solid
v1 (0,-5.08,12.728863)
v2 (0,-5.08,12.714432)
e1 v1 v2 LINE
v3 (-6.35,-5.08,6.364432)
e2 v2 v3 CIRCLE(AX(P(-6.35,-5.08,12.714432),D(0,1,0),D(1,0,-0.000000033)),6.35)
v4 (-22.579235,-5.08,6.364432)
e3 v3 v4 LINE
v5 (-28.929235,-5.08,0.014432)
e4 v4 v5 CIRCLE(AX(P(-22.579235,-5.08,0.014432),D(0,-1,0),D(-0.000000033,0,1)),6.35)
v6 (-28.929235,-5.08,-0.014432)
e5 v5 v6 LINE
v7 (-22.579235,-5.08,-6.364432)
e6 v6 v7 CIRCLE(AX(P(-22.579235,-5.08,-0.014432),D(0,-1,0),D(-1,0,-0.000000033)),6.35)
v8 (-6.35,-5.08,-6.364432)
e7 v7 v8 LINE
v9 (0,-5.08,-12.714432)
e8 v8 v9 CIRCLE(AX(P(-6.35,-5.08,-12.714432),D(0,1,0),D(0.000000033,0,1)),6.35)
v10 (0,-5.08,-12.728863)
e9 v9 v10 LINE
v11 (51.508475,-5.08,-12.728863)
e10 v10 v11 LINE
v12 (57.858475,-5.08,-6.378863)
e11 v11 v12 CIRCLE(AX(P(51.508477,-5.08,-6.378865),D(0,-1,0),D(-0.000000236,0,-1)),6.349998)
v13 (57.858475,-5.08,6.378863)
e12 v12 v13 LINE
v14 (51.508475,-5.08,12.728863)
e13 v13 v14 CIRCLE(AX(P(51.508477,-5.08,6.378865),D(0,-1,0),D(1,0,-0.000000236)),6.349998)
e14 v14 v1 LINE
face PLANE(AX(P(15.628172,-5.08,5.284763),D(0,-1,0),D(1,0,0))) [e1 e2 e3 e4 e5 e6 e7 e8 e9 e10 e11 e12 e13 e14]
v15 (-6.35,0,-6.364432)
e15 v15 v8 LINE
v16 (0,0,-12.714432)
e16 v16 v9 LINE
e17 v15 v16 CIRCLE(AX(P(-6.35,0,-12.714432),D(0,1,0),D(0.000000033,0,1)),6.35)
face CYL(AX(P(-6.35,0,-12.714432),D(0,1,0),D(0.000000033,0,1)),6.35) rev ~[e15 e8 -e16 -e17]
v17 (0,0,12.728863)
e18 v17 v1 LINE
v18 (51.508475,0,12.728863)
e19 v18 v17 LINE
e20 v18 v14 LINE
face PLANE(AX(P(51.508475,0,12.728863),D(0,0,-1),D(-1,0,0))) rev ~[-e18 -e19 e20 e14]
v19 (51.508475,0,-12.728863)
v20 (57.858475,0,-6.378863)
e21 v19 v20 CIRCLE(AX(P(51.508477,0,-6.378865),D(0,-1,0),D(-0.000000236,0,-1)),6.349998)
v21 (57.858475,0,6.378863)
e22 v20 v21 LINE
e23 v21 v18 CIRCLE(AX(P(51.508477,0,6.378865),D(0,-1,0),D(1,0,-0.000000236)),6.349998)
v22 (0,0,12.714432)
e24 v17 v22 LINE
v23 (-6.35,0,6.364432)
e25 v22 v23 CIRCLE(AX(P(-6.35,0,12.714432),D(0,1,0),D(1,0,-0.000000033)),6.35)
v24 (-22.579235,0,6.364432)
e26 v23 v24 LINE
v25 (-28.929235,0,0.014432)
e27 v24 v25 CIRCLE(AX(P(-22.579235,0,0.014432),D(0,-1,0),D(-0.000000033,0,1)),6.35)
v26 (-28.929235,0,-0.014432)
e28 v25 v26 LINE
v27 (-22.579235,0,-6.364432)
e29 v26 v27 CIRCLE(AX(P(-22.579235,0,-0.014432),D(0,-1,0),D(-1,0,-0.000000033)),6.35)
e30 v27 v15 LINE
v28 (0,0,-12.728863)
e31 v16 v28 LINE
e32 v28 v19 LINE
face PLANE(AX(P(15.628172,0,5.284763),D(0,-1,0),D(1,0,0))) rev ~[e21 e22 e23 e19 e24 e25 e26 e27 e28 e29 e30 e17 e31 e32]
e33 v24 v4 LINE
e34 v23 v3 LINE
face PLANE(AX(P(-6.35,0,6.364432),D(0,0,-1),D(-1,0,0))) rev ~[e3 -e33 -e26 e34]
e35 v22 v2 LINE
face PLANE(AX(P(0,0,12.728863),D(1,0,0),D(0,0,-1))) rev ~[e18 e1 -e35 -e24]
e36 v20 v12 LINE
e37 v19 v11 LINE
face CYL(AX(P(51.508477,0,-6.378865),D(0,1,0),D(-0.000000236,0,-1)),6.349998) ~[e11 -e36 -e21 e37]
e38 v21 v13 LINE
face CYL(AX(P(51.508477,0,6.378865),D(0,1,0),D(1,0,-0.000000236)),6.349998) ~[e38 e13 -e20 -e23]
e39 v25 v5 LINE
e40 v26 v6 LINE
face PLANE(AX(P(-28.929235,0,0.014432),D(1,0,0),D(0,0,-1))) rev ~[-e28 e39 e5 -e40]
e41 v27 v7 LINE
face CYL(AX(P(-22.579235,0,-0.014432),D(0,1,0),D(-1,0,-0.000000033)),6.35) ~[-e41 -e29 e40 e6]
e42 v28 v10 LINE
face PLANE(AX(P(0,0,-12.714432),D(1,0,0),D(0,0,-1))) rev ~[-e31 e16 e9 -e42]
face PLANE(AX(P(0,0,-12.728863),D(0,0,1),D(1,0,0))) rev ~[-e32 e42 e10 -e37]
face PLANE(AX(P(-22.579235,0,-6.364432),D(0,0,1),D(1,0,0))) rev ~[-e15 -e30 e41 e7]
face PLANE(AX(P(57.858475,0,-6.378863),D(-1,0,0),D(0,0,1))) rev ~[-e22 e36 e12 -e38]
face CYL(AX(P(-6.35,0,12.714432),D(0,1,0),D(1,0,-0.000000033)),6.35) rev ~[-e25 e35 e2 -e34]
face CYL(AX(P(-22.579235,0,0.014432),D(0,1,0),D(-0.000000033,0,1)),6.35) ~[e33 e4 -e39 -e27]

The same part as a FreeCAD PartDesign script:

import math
import FreeCAD as App
import Part
import Sketcher
Q = App.Units.Quantity

doc = App.newDocument("Part")
body = doc.addObject("PartDesign::Body", "Body")

# Sketch on XZ plane
sketch1 = body.newObject("Sketcher::SketchObject", "Sketch")
sketch1.AttachmentSupport = (doc.getObject("XZ_Plane"), [""])
sketch1.MapMode = "FlatFace"
sketch1.addGeometry([
    Part.LineSegment(App.Vector(0, 12.729, 0), App.Vector(0, 12.714, 0)),  # 0
    Part.ArcOfCircle(Part.Circle(App.Vector(-6.35, 12.714, 0), App.Vector(0, 0, 1), 6.35), math.radians(-90), math.radians(0)),  # 1
    Part.LineSegment(App.Vector(-6.35, 6.364, 0), App.Vector(-22.579, 6.364, 0)),  # 2
    Part.ArcOfCircle(Part.Circle(App.Vector(-22.579, 0.014, 0), App.Vector(0, 0, 1), 6.35), math.radians(90), math.radians(180)),  # 3
    Part.LineSegment(App.Vector(-28.929, 0.014, 0), App.Vector(-28.929, -0.014, 0)),  # 4
    Part.ArcOfCircle(Part.Circle(App.Vector(-22.579, -0.014, 0), App.Vector(0, 0, 1), 6.35), math.radians(-180), math.radians(-90)),  # 5
    Part.LineSegment(App.Vector(-22.579, -6.364, 0), App.Vector(-6.35, -6.364, 0)),  # 6
    Part.ArcOfCircle(Part.Circle(App.Vector(-6.35, -12.714, 0), App.Vector(0, 0, 1), 6.35), math.radians(0), math.radians(90)),  # 7
    Part.LineSegment(App.Vector(0, -12.714, 0), App.Vector(0, -12.729, 0)),  # 8
    Part.LineSegment(App.Vector(0, -12.729, 0), App.Vector(51.508, -12.729, 0)),  # 9
    Part.ArcOfCircle(Part.Circle(App.Vector(51.508, -6.379, 0), App.Vector(0, 0, 1), 6.35), math.radians(-90), math.radians(0)),  # 10
    Part.LineSegment(App.Vector(57.858, -6.379, 0), App.Vector(57.858, 6.379, 0)),  # 11
    Part.ArcOfCircle(Part.Circle(App.Vector(51.508, 6.379, 0), App.Vector(0, 0, 1), 6.35), math.radians(0), math.radians(90)),  # 12
    Part.LineSegment(App.Vector(51.508, 12.729, 0), App.Vector(0, 12.729, 0)),  # 13
], False)
sketch1.addConstraint([
    Sketcher.Constraint("Tangent", 0, 2, 1, 2),
    Sketcher.Constraint("Tangent", 1, 1, 2, 1),
    Sketcher.Constraint("Tangent", 2, 2, 3, 1),
    Sketcher.Constraint("Tangent", 3, 2, 4, 1),
    Sketcher.Constraint("Tangent", 4, 2, 5, 1),
    Sketcher.Constraint("Tangent", 5, 2, 6, 1),
    Sketcher.Constraint("Tangent", 6, 2, 7, 2),
    Sketcher.Constraint("Tangent", 7, 1, 8, 1),
    Sketcher.Constraint("Coincident", 8, 2, 9, 1),
    Sketcher.Constraint("Tangent", 9, 2, 10, 1),
    Sketcher.Constraint("Tangent", 10, 2, 11, 1),
    Sketcher.Constraint("Tangent", 11, 2, 12, 1),
    Sketcher.Constraint("Tangent", 12, 2, 13, 1),
    Sketcher.Constraint("Coincident", 13, 2, 0, 1),
    Sketcher.Constraint("Horizontal", 2),
    Sketcher.Constraint("Vertical", 4),
    Sketcher.Constraint("Horizontal", 6),
    Sketcher.Constraint("Horizontal", 9),
    Sketcher.Constraint("Vertical", 11),
    Sketcher.Constraint("Horizontal", 13),
    Sketcher.Constraint("Equal", 1, 3),
    Sketcher.Constraint("Equal", 3, 5),
    Sketcher.Constraint("Equal", 5, 7),
    Sketcher.Constraint("Equal", 7, 10),
    Sketcher.Constraint("Equal", 10, 12),
    Sketcher.Constraint("Symmetric", 0, 2, 7, 1, -1, 1),
    Sketcher.Constraint("Symmetric", 8, 2, 13, 2, -1, 1),
    Sketcher.Constraint("Symmetric", 1, 3, 7, 3, -1),
    Sketcher.Constraint("Radius", 1, Q("0.25 in")),
    Sketcher.Constraint("DistanceY", 0, 2, 0, 1, Q("0.014431 mm")),
    Sketcher.Constraint("DistanceX", 2, 2, 2, 1, Q("16.229235 mm")),
    Sketcher.Constraint("DistanceX", 9, 1, 9, 2, Q("51.508475 mm")),
    Sketcher.Constraint("DistanceY", 4, 2, 4, 1, Q("0.028864 mm")),
])
pad1 = body.newObject("PartDesign::Pad", "Pad")
pad1.Profile = sketch1
pad1.Length = Q("0.2 in")

doc.recompute()
